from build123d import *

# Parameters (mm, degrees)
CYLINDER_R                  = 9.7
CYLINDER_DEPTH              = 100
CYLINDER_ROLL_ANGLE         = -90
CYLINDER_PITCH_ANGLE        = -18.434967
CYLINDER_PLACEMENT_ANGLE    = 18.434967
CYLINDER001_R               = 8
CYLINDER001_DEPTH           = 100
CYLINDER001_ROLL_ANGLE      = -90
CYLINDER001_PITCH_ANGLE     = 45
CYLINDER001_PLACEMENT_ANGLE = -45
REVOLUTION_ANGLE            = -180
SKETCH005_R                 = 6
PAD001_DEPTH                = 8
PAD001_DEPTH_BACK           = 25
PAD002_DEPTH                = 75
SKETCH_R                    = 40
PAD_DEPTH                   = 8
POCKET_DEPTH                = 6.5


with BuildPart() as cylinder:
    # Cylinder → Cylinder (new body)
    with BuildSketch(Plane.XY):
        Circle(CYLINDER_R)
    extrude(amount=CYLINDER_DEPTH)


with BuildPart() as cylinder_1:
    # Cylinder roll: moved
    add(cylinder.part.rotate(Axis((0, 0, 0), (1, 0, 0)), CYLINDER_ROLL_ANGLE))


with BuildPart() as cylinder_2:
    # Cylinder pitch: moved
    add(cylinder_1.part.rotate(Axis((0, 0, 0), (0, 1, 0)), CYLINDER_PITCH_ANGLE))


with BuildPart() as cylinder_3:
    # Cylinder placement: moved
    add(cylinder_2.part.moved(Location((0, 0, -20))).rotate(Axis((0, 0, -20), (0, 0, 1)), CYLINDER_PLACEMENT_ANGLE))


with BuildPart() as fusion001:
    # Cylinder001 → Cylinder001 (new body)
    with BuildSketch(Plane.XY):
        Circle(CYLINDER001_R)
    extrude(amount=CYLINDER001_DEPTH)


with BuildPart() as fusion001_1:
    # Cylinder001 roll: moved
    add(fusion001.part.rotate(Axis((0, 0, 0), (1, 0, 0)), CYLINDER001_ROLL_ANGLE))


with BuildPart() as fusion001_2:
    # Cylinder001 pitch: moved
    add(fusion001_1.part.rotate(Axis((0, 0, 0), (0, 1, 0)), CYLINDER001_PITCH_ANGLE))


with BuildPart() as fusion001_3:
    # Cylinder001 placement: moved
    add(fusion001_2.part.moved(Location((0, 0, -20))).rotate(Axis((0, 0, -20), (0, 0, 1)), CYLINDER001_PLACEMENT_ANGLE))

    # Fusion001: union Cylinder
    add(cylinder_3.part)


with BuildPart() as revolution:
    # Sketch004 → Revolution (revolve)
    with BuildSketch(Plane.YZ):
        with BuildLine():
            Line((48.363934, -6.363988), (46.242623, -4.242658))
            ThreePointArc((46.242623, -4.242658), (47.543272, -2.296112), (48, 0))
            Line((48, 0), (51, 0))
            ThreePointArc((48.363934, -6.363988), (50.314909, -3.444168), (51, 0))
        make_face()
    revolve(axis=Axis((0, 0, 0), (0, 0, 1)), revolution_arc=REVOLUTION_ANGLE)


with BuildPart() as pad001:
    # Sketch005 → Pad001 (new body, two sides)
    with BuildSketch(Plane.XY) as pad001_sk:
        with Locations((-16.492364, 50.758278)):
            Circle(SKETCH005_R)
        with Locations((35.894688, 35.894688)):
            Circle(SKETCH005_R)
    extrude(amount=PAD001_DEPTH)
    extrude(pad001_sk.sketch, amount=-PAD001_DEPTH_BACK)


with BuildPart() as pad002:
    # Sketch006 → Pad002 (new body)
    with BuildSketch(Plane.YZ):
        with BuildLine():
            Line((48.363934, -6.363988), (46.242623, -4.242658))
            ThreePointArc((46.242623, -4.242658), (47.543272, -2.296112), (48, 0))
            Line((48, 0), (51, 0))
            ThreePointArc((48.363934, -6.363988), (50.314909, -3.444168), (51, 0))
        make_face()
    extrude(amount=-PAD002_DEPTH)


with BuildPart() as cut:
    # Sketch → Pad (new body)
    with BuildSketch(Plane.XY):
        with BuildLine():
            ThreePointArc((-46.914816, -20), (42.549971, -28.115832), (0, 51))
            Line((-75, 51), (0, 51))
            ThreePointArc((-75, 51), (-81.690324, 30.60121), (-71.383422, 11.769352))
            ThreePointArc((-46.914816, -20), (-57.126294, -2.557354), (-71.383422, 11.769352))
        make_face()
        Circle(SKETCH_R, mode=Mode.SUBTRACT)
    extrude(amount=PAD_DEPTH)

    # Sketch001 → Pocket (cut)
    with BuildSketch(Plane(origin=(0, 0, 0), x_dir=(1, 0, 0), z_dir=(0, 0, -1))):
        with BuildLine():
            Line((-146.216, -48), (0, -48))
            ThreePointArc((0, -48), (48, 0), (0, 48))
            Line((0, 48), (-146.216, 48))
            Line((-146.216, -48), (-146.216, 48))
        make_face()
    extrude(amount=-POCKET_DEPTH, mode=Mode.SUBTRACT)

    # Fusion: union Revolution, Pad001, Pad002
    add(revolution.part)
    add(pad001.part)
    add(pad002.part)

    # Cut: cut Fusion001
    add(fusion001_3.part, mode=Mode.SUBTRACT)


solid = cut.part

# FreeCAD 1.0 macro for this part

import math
import FreeCAD as App
import Part
import Sketcher
from FreeCAD import Vector

doc = App.newDocument("Part")
params = doc.addObject("Spreadsheet::Sheet", "Params")
for row, (alias, value) in enumerate([
    ("sketch1_diameter", "19.4 mm"),
    ("pad1_length", "100 mm"),
    ("sketch2_diameter", "16 mm"),
    ("pad2_length", "100 mm"),
    ("sketch3_width", "3 mm"),
    ("revolution_angle", "180 deg"),
    ("sketch4_diameter", "12 mm"),
    ("pad3_length", "8 mm"),
    ("pad3_length2", "25 mm"),
    ("sketch5_width", "3 mm"),
    ("pad4_length", "75 mm"),
    ("sketch6_diameter", "80 mm"),
    ("sketch6_radius", "51 mm"),
    ("sketch6_radius2", "27.000001 mm"),
    ("sketch6_radius3", "80.000001 mm"),
    ("sketch6_width", "75 mm"),
    ("pad5_length", "8 mm"),
    ("sketch7_radius", "48 mm"),
    ("pocket1_length", "6.5 mm"),
], start=1):
    params.set(f"A{row}", alias)
    params.set(f"B{row}", "=" + value)
    params.setAlias(f"B{row}", alias)

body = doc.addObject("PartDesign::Body", "Body")

# Sketch on XY plane
sketch1 = body.newObject("Sketcher::SketchObject", "Sketch")
sketch1.AttachmentSupport = (doc.getObject("XY_Plane"), [""])
sketch1.MapMode = "FlatFace"
sketch1.addGeometry(Part.Circle(Vector(0, 0, 0), Vector(0, 0, 1), 10), False)
sketch1.addConstraint([
    Sketcher.Constraint("Coincident", 0, 3, -1, 1),
    Sketcher.Constraint("Diameter", 0, 19.4),
])
sketch1.setExpression("Constraints[1]", "Params.sketch1_diameter")
pad1 = body.newObject("PartDesign::Pad", "Pad")
pad1.Profile = sketch1
pad1.setExpression("Length", "Params.pad1_length")
body2 = doc.addObject("PartDesign::Body", "Body001")
doc.recompute()

body.Placement = App.Placement(Vector(0, 0, 0), App.Rotation(Vector(1, 0, 0), 270))
boolean = body2.newObject("PartDesign::Boolean", "Boolean")
boolean.Type = "Fuse"
boolean.addObjects([body])
body3 = doc.addObject("PartDesign::Body", "Body002")
doc.recompute()

body2.Placement = App.Placement(Vector(0, 0, 0), App.Rotation(Vector(0, 1, 0), 341.565033))
boolean2 = body3.newObject("PartDesign::Boolean", "Boolean001")
boolean2.Type = "Fuse"
boolean2.addObjects([body2])
body4 = doc.addObject("PartDesign::Body", "Body003")
doc.recompute()

body3.Placement = App.Placement(Vector(0, 0, -20), App.Rotation(Vector(0, 0, 1), 18.434967))
boolean3 = body4.newObject("PartDesign::Boolean", "Boolean002")
boolean3.Type = "Fuse"
boolean3.addObjects([body3])
body5 = doc.addObject("PartDesign::Body", "Body004")

# Sketch on XY plane
sketch2 = body5.newObject("Sketcher::SketchObject", "Sketch001")
sketch2.AttachmentSupport = (doc.getObject("XY_Plane004"), [""])
sketch2.MapMode = "FlatFace"
sketch2.addGeometry(Part.Circle(Vector(0, 0, 0), Vector(0, 0, 1), 8), False)
sketch2.addConstraint([
    Sketcher.Constraint("Coincident", 0, 3, -1, 1),
    Sketcher.Constraint("Diameter", 0, 16.0),
])
sketch2.setExpression("Constraints[1]", "Params.sketch2_diameter")
pad2 = body5.newObject("PartDesign::Pad", "Pad001")
pad2.Profile = sketch2
pad2.setExpression("Length", "Params.pad2_length")
body6 = doc.addObject("PartDesign::Body", "Body005")
doc.recompute()

body5.Placement = App.Placement(Vector(0, 0, 0), App.Rotation(Vector(1, 0, 0), 270))
boolean4 = body6.newObject("PartDesign::Boolean", "Boolean003")
boolean4.Type = "Fuse"
boolean4.addObjects([body5])
body7 = doc.addObject("PartDesign::Body", "Body006")
doc.recompute()

body6.Placement = App.Placement(Vector(0, 0, 0), App.Rotation(Vector(0, 1, 0), 45))
boolean5 = body7.newObject("PartDesign::Boolean", "Boolean004")
boolean5.Type = "Fuse"
boolean5.addObjects([body6])
body8 = doc.addObject("PartDesign::Body", "Body007")
doc.recompute()

body7.Placement = App.Placement(Vector(0, 0, -20), App.Rotation(Vector(0, 0, 1), 315))
boolean6 = body8.newObject("PartDesign::Boolean", "Boolean005")
boolean6.Type = "Fuse"
boolean6.addObjects([body7])
doc.recompute()

boolean7 = body8.newObject("PartDesign::Boolean", "Boolean006")
boolean7.Type = "Fuse"
boolean7.addObjects([body4])
body9 = doc.addObject("PartDesign::Body", "Body008")

# Sketch on YZ plane
sketch3 = body9.newObject("Sketcher::SketchObject", "Sketch002")
sketch3.AttachmentSupport = (doc.getObject("YZ_Plane008"), [""])
sketch3.MapMode = "FlatFace"
sketch3.addGeometry([
    Part.LineSegment(Vector(46.2, -4.2, 0), Vector(48.4, -6.4, 0)),
    Part.ArcOfCircle(Part.Circle(Vector(42, 0, 0), Vector(0, 0, 1), 9), math.radians(-45), math.radians(0)),
    Part.LineSegment(Vector(51, 0, 0), Vector(48, 0, 0)),
    Part.ArcOfCircle(Part.Circle(Vector(42, 0, 0), Vector(0, 0, 1), 6), math.radians(-45), math.radians(0)),
], False)
sketch3.addConstraint([
    Sketcher.Constraint("Coincident", 0, 2, 1, 1),
    Sketcher.Constraint("Coincident", 1, 2, 2, 1),
    Sketcher.Constraint("Coincident", 2, 2, 3, 2),
    Sketcher.Constraint("Coincident", 3, 1, 0, 1),
    Sketcher.Constraint("Horizontal", 2),
    Sketcher.Constraint("Coincident", 3, 3, 1, 3),
    Sketcher.Constraint("PointOnObject", 1, 3, -1),
    Sketcher.Constraint("PointOnObject", 1, 2, -1),
    Sketcher.Constraint("DistanceX", 2, 2, 2, 1, 3.0),
    Sketcher.Constraint("DistanceX", -1, 1, 1, 2, 51.0),
    Sketcher.Constraint("Radius", 1, 8.999996),
    Sketcher.Constraint("DistanceY", 3, 1, -1, 1, 4.242658),
    Sketcher.Constraint("DistanceX", 1, 3, 0, 2, 6.36393),
])
sketch3.setExpression("Constraints[8]", "Params.sketch3_width")
revolution = body9.newObject("PartDesign::Revolution", "Revolution")
revolution.Profile = sketch3
revolution.ReferenceAxis = (sketch3, ["V_Axis"])
revolution.setExpression("Angle", "Params.revolution_angle")
revolution.Reversed = True
body10 = doc.addObject("PartDesign::Body", "Body009")
body10.AllowCompound = True

# Sketch on XY plane
sketch4 = body10.newObject("Sketcher::SketchObject", "Sketch003")
sketch4.AttachmentSupport = (doc.getObject("XY_Plane009"), [""])
sketch4.MapMode = "FlatFace"
sketch4.addGeometry([
    Part.Circle(Vector(-16, 51, 0), Vector(0, 0, 1), 6),
    Part.Circle(Vector(36, 36, 0), Vector(0, 0, 1), 6),
], False)
sketch4.addConstraint([
    Sketcher.Constraint("Equal", 0, 1),
    Sketcher.Constraint("Diameter", 0, 12.0),
    Sketcher.Constraint("DistanceX", -1, 1, 1, 3, 35.894688),
    Sketcher.Constraint("DistanceY", -1, 1, 1, 3, 35.894688),
    Sketcher.Constraint("DistanceX", 0, 3, 1, 3, 52.387052),
    Sketcher.Constraint("DistanceY", 1, 3, 0, 3, 14.86359),
])
sketch4.setExpression("Constraints[1]", "Params.sketch4_diameter")
pad3 = body10.newObject("PartDesign::Pad", "Pad002")
pad3.Profile = sketch4
pad3.Type = "TwoLengths"
pad3.setExpression("Length", "Params.pad3_length")
pad3.setExpression("Length2", "Params.pad3_length2")
body11 = doc.addObject("PartDesign::Body", "Body010")

# Sketch on YZ plane
sketch5 = body11.newObject("Sketcher::SketchObject", "Sketch004")
sketch5.AttachmentSupport = (doc.getObject("YZ_Plane010"), [""])
sketch5.MapMode = "FlatFace"
sketch5.addGeometry([
    Part.LineSegment(Vector(46.2, -4.2, 0), Vector(48.4, -6.4, 0)),
    Part.ArcOfCircle(Part.Circle(Vector(42, 0, 0), Vector(0, 0, 1), 9), math.radians(-45), math.radians(0)),
    Part.LineSegment(Vector(51, 0, 0), Vector(48, 0, 0)),
    Part.ArcOfCircle(Part.Circle(Vector(42, 0, 0), Vector(0, 0, 1), 6), math.radians(-45), math.radians(0)),
], False)
sketch5.addConstraint([
    Sketcher.Constraint("Coincident", 0, 2, 1, 1),
    Sketcher.Constraint("Coincident", 1, 2, 2, 1),
    Sketcher.Constraint("Coincident", 2, 2, 3, 2),
    Sketcher.Constraint("Coincident", 3, 1, 0, 1),
    Sketcher.Constraint("Horizontal", 2),
    Sketcher.Constraint("Coincident", 3, 3, 1, 3),
    Sketcher.Constraint("PointOnObject", 1, 3, -1),
    Sketcher.Constraint("PointOnObject", 1, 2, -1),
    Sketcher.Constraint("DistanceX", 2, 2, 2, 1, 3.0),
    Sketcher.Constraint("DistanceX", -1, 1, 1, 2, 51.0),
    Sketcher.Constraint("Radius", 1, 8.999996),
    Sketcher.Constraint("DistanceY", 3, 1, -1, 1, 4.242658),
    Sketcher.Constraint("DistanceX", 1, 3, 0, 2, 6.36393),
])
sketch5.setExpression("Constraints[8]", "Params.sketch5_width")
pad4 = body11.newObject("PartDesign::Pad", "Pad003")
pad4.Profile = sketch5
pad4.setExpression("Length", "Params.pad4_length")
pad4.Reversed = True
body12 = doc.addObject("PartDesign::Body", "Body011")

# Sketch on XY plane
sketch6 = body12.newObject("Sketcher::SketchObject", "Sketch005")
sketch6.AttachmentSupport = (doc.getObject("XY_Plane011"), [""])
sketch6.MapMode = "FlatFace"
sketch6.addGeometry([
    Part.ArcOfCircle(Part.Circle(Vector(0, 0, 0), Vector(0, 0, 1), 51), math.radians(-156.911228), math.radians(90.000001)),  # 0
    Part.LineSegment(Vector(0, 51, 0), Vector(-75, 51, 0)),  # 1
    Part.ArcOfCircle(Part.Circle(Vector(-54.804327, 33.079764, 0), Vector(0, 0, 1), 27.000001), math.radians(138.416379), math.radians(232.117764)),  # 2
    Part.ArcOfCircle(Part.Circle(Vector(-120.506659, -51.372614, 0), Vector(0, 0, 1), 80.000001), math.radians(23.088822), math.radians(52.117769)),  # 3
    Part.Circle(Vector(0, 0, 0), Vector(0, 0, 1), 40),  # 4
], False)
sketch6.addConstraint([
    Sketcher.Constraint("Coincident", 0, 2, 1, 1),
    Sketcher.Constraint("Coincident", 1, 2, 2, 1),
    Sketcher.Constraint("Coincident", 2, 2, 3, 2),
    Sketcher.Constraint("Coincident", 3, 1, 0, 1),
    Sketcher.Constraint("Horizontal", 1),
    Sketcher.Constraint("Coincident", 0, 3, -1, 1),
    Sketcher.Constraint("Coincident", 4, 3, -1, 1),
    Sketcher.Constraint("PointOnObject", 0, 2, -2),
    Sketcher.Constraint("Diameter", 4, 80.0),
    Sketcher.Constraint("Radius", 0, 51.0),
    Sketcher.Constraint("Radius", 2, 27.000001),
    Sketcher.Constraint("Radius", 3, 80.000001),
    Sketcher.Constraint("DistanceX", 1, 2, 1, 1, 75.0),
    Sketcher.Constraint("DistanceY", 3, 1, -1, 1, 20.0),
    Sketcher.Constraint("DistanceX", 3, 3, -1, 1, 120.506659),
    Sketcher.Constraint("DistanceX", 2, 2, -1, 1, 71.383422),
])
sketch6.setExpression("Constraints[8]", "Params.sketch6_diameter")
sketch6.setExpression("Constraints[9]", "Params.sketch6_radius")
sketch6.setExpression("Constraints[10]", "Params.sketch6_radius2")
sketch6.setExpression("Constraints[11]", "Params.sketch6_radius3")
sketch6.setExpression("Constraints[12]", "Params.sketch6_width")
pad5 = body12.newObject("PartDesign::Pad", "Pad004")
pad5.Profile = sketch6
pad5.setExpression("Length", "Params.pad5_length")

# Sketch on XY plane
sketch7 = body12.newObject("Sketcher::SketchObject", "Sketch006")
sketch7.AttachmentSupport = (doc.getObject("XY_Plane011"), [""])
sketch7.MapMode = "FlatFace"
sketch7.addGeometry([
    Part.LineSegment(Vector(-146, 48, 0), Vector(0, 48, 0)),
    Part.ArcOfCircle(Part.Circle(Vector(0, 0, 0), Vector(0, 0, 1), 48), math.radians(-90), math.radians(90)),
    Part.LineSegment(Vector(0, -48, 0), Vector(-146, -48, 0)),
    Part.LineSegment(Vector(-146, -48, 0), Vector(-146, 48, 0)),
], False)
sketch7.addConstraint([
    Sketcher.Constraint("Tangent", 0, 2, 1, 2),
    Sketcher.Constraint("Tangent", 1, 1, 2, 1),
    Sketcher.Constraint("Coincident", 2, 2, 3, 1),
    Sketcher.Constraint("Coincident", 3, 2, 0, 1),
    Sketcher.Constraint("Horizontal", 0),
    Sketcher.Constraint("Horizontal", 2),
    Sketcher.Constraint("Vertical", 3),
    Sketcher.Constraint("Coincident", 1, 3, -1, 1),
    Sketcher.Constraint("Radius", 1, 48.0),
    Sketcher.Constraint("DistanceX", 0, 1, 0, 2, 146.216),
])
sketch7.setExpression("Constraints[8]", "Params.sketch7_radius")
pocket1 = body12.newObject("PartDesign::Pocket", "Pocket")
pocket1.Profile = sketch7
pocket1.setExpression("Length", "Params.pocket1_length")
pocket1.Reversed = True
doc.recompute()

boolean8 = body12.newObject("PartDesign::Boolean", "Boolean007")
boolean8.Type = "Fuse"
boolean8.addObjects([body9])
doc.recompute()

boolean9 = body12.newObject("PartDesign::Boolean", "Boolean008")
boolean9.Type = "Fuse"
boolean9.addObjects([body10])
doc.recompute()

boolean10 = body12.newObject("PartDesign::Boolean", "Boolean009")
boolean10.Type = "Fuse"
boolean10.addObjects([body11])
doc.recompute()

boolean11 = body12.newObject("PartDesign::Boolean", "Boolean010")
boolean11.Type = "Cut"
boolean11.addObjects([body8])

doc.recompute()
